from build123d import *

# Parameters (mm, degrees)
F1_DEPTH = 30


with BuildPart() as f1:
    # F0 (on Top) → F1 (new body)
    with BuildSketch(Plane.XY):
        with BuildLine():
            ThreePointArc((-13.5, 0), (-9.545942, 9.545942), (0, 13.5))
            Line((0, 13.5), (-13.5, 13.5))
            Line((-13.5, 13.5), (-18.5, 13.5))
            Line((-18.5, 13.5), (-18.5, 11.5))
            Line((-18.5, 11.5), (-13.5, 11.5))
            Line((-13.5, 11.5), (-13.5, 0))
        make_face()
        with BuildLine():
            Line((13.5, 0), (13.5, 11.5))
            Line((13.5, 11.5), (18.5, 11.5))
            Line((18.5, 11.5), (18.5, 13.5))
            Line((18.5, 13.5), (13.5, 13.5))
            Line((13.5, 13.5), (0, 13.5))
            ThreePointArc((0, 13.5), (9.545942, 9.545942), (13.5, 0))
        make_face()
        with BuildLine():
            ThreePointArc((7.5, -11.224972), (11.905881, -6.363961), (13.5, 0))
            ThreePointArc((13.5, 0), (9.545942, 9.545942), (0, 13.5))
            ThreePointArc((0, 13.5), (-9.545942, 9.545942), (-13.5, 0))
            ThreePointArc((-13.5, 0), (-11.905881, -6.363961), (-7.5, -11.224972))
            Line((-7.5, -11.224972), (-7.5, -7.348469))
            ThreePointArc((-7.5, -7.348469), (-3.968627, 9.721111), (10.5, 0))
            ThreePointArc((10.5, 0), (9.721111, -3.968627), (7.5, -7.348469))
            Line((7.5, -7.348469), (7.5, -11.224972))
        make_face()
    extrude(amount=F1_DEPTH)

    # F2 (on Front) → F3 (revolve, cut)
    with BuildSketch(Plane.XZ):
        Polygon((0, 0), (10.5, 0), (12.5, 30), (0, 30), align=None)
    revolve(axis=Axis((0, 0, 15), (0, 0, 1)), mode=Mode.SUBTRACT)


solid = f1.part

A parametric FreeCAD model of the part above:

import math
import FreeCAD as App
import Part
import Sketcher
from FreeCAD import Vector

doc = App.newDocument("Part")
body = doc.addObject("PartDesign::Body", "Body")

# Sketch on XY plane
sketch1 = body.newObject("Sketcher::SketchObject", "Sketch")
sketch1.AttachmentSupport = (doc.getObject("XY_Plane"), [""])
sketch1.MapMode = "FlatFace"
sketch1.addGeometry([
    Part.LineSegment(Vector(-18.5, 13.5, 0), Vector(-18.5, 11.5, 0)),  # 0
    Part.LineSegment(Vector(-18.5, 11.5, 0), Vector(-13.5, 11.5, 0)),  # 1
    Part.LineSegment(Vector(-13.5, 11.5, 0), Vector(-13.5, 0, 0)),  # 2
    Part.ArcOfCircle(Part.Circle(Vector(0, 0, 0), Vector(0, 0, 1), 13.5), math.radians(180), math.radians(236)),  # 3
    Part.LineSegment(Vector(-7.5, -11.2, 0), Vector(-7.5, -7.3, 0)),  # 4
    Part.ArcOfCircle(Part.Circle(Vector(0, 0, 0), Vector(0, 0, 1), 10.5), math.radians(0), math.radians(224)),  # 5
    Part.ArcOfCircle(Part.Circle(Vector(0, 0, 0), Vector(0, 0, 1), 10.5), math.radians(-44), math.radians(0)),  # 6
    Part.LineSegment(Vector(7.5, -7.3, 0), Vector(7.5, -11.2, 0)),  # 7
    Part.ArcOfCircle(Part.Circle(Vector(0, 0, 0), Vector(0, 0, 1), 13.5), math.radians(-56), math.radians(0)),  # 8
    Part.LineSegment(Vector(13.5, 0, 0), Vector(13.5, 11.5, 0)),  # 9
    Part.LineSegment(Vector(13.5, 11.5, 0), Vector(18.5, 11.5, 0)),  # 10
    Part.LineSegment(Vector(18.5, 11.5, 0), Vector(18.5, 13.5, 0)),  # 11
    Part.LineSegment(Vector(18.5, 13.5, 0), Vector(-18.5, 13.5, 0)),  # 12
], False)
sketch1.addConstraint([
    Sketcher.Constraint("Coincident", 0, 2, 1, 1),
    Sketcher.Constraint("Coincident", 1, 2, 2, 1),
    Sketcher.Constraint("Tangent", 2, 2, 3, 1),
    Sketcher.Constraint("Coincident", 3, 2, 4, 1),
    Sketcher.Constraint("Coincident", 4, 2, 5, 2),
    Sketcher.Constraint("Tangent", 5, 1, 6, 2),
    Sketcher.Constraint("Coincident", 6, 1, 7, 1),
    Sketcher.Constraint("Coincident", 7, 2, 8, 1),
    Sketcher.Constraint("Tangent", 8, 2, 9, 1),
    Sketcher.Constraint("Coincident", 9, 2, 10, 1),
    Sketcher.Constraint("Coincident", 10, 2, 11, 1),
    Sketcher.Constraint("Coincident", 11, 2, 12, 1),
    Sketcher.Constraint("Coincident", 12, 2, 0, 1),
    Sketcher.Constraint("Vertical", 0),
    Sketcher.Constraint("Horizontal", 1),
    Sketcher.Constraint("Vertical", 2),
    Sketcher.Constraint("Vertical", 4),
    Sketcher.Constraint("Vertical", 7),
    Sketcher.Constraint("Vertical", 9),
    Sketcher.Constraint("Horizontal", 10),
    Sketcher.Constraint("Vertical", 11),
    Sketcher.Constraint("Horizontal", 12),
    Sketcher.Constraint("Coincident", 3, 3, -1, 1),
    Sketcher.Constraint("Coincident", 5, 3, -1, 1),
    Sketcher.Constraint("Coincident", 8, 3, -1, 1),
    Sketcher.Constraint("Equal", 5, 6),
    Sketcher.Constraint("Equal", 3, 8),
    Sketcher.Constraint("Symmetric", 0, 2, 10, 2, -2),
    Sketcher.Constraint("PointOnObject", 5, 1, -1),
    Sketcher.Constraint("Horizontal", 4, 2, 6, 1),
    Sketcher.Constraint("Radius", 3, 13.499999),
    Sketcher.Constraint("Radius", 5, 10.5),
    Sketcher.Constraint("DistanceX", 1, 1, 1, 2, 5.0),
    Sketcher.Constraint("DistanceY", 0, 2, 0, 1, 2.0),
    Sketcher.Constraint("DistanceY", 2, 2, 2, 1, 11.5),
    Sketcher.Constraint("DistanceX", 2, 2, 3, 2, 6.0),
])
pad1 = body.newObject("PartDesign::Pad", "Pad")
pad1.Profile = sketch1
pad1.Length = 30

# Sketch on XZ plane
sketch2 = body.newObject("Sketcher::SketchObject", "Sketch001")
sketch2.AttachmentSupport = (doc.getObject("XZ_Plane"), [""])
sketch2.MapMode = "FlatFace"
sketch2.addGeometry([
    Part.LineSegment(Vector(0, 0, 0), Vector(10, 0, 0)),
    Part.LineSegment(Vector(10, 0, 0), Vector(12, 30, 0)),
    Part.LineSegment(Vector(12, 30, 0), Vector(0, 30, 0)),
    Part.LineSegment(Vector(0, 30, 0), Vector(0, 0, 0)),
], False)
sketch2.addConstraint([
    Sketcher.Constraint("Coincident", 0, 2, 1, 1),
    Sketcher.Constraint("Coincident", 1, 2, 2, 1),
    Sketcher.Constraint("Coincident", 2, 2, 3, 1),
    Sketcher.Constraint("Coincident", 3, 2, 0, 1),
    Sketcher.Constraint("Horizontal", 0),
    Sketcher.Constraint("Horizontal", 2),
    Sketcher.Constraint("Vertical", 3),
    Sketcher.Constraint("Coincident", 3, 2, -1, 1),
    Sketcher.Constraint("DistanceY", 3, 2, 3, 1, 30.0),
    Sketcher.Constraint("DistanceX", 0, 1, 0, 2, 10.5),
    Sketcher.Constraint("DistanceX", 2, 2, 2, 1, 12.5),
])
groove = body.newObject("PartDesign::Groove", "Groove")
groove.Profile = sketch2
groove.ReferenceAxis = (sketch2, ["V_Axis"])
groove.Angle = 360

doc.recompute()
